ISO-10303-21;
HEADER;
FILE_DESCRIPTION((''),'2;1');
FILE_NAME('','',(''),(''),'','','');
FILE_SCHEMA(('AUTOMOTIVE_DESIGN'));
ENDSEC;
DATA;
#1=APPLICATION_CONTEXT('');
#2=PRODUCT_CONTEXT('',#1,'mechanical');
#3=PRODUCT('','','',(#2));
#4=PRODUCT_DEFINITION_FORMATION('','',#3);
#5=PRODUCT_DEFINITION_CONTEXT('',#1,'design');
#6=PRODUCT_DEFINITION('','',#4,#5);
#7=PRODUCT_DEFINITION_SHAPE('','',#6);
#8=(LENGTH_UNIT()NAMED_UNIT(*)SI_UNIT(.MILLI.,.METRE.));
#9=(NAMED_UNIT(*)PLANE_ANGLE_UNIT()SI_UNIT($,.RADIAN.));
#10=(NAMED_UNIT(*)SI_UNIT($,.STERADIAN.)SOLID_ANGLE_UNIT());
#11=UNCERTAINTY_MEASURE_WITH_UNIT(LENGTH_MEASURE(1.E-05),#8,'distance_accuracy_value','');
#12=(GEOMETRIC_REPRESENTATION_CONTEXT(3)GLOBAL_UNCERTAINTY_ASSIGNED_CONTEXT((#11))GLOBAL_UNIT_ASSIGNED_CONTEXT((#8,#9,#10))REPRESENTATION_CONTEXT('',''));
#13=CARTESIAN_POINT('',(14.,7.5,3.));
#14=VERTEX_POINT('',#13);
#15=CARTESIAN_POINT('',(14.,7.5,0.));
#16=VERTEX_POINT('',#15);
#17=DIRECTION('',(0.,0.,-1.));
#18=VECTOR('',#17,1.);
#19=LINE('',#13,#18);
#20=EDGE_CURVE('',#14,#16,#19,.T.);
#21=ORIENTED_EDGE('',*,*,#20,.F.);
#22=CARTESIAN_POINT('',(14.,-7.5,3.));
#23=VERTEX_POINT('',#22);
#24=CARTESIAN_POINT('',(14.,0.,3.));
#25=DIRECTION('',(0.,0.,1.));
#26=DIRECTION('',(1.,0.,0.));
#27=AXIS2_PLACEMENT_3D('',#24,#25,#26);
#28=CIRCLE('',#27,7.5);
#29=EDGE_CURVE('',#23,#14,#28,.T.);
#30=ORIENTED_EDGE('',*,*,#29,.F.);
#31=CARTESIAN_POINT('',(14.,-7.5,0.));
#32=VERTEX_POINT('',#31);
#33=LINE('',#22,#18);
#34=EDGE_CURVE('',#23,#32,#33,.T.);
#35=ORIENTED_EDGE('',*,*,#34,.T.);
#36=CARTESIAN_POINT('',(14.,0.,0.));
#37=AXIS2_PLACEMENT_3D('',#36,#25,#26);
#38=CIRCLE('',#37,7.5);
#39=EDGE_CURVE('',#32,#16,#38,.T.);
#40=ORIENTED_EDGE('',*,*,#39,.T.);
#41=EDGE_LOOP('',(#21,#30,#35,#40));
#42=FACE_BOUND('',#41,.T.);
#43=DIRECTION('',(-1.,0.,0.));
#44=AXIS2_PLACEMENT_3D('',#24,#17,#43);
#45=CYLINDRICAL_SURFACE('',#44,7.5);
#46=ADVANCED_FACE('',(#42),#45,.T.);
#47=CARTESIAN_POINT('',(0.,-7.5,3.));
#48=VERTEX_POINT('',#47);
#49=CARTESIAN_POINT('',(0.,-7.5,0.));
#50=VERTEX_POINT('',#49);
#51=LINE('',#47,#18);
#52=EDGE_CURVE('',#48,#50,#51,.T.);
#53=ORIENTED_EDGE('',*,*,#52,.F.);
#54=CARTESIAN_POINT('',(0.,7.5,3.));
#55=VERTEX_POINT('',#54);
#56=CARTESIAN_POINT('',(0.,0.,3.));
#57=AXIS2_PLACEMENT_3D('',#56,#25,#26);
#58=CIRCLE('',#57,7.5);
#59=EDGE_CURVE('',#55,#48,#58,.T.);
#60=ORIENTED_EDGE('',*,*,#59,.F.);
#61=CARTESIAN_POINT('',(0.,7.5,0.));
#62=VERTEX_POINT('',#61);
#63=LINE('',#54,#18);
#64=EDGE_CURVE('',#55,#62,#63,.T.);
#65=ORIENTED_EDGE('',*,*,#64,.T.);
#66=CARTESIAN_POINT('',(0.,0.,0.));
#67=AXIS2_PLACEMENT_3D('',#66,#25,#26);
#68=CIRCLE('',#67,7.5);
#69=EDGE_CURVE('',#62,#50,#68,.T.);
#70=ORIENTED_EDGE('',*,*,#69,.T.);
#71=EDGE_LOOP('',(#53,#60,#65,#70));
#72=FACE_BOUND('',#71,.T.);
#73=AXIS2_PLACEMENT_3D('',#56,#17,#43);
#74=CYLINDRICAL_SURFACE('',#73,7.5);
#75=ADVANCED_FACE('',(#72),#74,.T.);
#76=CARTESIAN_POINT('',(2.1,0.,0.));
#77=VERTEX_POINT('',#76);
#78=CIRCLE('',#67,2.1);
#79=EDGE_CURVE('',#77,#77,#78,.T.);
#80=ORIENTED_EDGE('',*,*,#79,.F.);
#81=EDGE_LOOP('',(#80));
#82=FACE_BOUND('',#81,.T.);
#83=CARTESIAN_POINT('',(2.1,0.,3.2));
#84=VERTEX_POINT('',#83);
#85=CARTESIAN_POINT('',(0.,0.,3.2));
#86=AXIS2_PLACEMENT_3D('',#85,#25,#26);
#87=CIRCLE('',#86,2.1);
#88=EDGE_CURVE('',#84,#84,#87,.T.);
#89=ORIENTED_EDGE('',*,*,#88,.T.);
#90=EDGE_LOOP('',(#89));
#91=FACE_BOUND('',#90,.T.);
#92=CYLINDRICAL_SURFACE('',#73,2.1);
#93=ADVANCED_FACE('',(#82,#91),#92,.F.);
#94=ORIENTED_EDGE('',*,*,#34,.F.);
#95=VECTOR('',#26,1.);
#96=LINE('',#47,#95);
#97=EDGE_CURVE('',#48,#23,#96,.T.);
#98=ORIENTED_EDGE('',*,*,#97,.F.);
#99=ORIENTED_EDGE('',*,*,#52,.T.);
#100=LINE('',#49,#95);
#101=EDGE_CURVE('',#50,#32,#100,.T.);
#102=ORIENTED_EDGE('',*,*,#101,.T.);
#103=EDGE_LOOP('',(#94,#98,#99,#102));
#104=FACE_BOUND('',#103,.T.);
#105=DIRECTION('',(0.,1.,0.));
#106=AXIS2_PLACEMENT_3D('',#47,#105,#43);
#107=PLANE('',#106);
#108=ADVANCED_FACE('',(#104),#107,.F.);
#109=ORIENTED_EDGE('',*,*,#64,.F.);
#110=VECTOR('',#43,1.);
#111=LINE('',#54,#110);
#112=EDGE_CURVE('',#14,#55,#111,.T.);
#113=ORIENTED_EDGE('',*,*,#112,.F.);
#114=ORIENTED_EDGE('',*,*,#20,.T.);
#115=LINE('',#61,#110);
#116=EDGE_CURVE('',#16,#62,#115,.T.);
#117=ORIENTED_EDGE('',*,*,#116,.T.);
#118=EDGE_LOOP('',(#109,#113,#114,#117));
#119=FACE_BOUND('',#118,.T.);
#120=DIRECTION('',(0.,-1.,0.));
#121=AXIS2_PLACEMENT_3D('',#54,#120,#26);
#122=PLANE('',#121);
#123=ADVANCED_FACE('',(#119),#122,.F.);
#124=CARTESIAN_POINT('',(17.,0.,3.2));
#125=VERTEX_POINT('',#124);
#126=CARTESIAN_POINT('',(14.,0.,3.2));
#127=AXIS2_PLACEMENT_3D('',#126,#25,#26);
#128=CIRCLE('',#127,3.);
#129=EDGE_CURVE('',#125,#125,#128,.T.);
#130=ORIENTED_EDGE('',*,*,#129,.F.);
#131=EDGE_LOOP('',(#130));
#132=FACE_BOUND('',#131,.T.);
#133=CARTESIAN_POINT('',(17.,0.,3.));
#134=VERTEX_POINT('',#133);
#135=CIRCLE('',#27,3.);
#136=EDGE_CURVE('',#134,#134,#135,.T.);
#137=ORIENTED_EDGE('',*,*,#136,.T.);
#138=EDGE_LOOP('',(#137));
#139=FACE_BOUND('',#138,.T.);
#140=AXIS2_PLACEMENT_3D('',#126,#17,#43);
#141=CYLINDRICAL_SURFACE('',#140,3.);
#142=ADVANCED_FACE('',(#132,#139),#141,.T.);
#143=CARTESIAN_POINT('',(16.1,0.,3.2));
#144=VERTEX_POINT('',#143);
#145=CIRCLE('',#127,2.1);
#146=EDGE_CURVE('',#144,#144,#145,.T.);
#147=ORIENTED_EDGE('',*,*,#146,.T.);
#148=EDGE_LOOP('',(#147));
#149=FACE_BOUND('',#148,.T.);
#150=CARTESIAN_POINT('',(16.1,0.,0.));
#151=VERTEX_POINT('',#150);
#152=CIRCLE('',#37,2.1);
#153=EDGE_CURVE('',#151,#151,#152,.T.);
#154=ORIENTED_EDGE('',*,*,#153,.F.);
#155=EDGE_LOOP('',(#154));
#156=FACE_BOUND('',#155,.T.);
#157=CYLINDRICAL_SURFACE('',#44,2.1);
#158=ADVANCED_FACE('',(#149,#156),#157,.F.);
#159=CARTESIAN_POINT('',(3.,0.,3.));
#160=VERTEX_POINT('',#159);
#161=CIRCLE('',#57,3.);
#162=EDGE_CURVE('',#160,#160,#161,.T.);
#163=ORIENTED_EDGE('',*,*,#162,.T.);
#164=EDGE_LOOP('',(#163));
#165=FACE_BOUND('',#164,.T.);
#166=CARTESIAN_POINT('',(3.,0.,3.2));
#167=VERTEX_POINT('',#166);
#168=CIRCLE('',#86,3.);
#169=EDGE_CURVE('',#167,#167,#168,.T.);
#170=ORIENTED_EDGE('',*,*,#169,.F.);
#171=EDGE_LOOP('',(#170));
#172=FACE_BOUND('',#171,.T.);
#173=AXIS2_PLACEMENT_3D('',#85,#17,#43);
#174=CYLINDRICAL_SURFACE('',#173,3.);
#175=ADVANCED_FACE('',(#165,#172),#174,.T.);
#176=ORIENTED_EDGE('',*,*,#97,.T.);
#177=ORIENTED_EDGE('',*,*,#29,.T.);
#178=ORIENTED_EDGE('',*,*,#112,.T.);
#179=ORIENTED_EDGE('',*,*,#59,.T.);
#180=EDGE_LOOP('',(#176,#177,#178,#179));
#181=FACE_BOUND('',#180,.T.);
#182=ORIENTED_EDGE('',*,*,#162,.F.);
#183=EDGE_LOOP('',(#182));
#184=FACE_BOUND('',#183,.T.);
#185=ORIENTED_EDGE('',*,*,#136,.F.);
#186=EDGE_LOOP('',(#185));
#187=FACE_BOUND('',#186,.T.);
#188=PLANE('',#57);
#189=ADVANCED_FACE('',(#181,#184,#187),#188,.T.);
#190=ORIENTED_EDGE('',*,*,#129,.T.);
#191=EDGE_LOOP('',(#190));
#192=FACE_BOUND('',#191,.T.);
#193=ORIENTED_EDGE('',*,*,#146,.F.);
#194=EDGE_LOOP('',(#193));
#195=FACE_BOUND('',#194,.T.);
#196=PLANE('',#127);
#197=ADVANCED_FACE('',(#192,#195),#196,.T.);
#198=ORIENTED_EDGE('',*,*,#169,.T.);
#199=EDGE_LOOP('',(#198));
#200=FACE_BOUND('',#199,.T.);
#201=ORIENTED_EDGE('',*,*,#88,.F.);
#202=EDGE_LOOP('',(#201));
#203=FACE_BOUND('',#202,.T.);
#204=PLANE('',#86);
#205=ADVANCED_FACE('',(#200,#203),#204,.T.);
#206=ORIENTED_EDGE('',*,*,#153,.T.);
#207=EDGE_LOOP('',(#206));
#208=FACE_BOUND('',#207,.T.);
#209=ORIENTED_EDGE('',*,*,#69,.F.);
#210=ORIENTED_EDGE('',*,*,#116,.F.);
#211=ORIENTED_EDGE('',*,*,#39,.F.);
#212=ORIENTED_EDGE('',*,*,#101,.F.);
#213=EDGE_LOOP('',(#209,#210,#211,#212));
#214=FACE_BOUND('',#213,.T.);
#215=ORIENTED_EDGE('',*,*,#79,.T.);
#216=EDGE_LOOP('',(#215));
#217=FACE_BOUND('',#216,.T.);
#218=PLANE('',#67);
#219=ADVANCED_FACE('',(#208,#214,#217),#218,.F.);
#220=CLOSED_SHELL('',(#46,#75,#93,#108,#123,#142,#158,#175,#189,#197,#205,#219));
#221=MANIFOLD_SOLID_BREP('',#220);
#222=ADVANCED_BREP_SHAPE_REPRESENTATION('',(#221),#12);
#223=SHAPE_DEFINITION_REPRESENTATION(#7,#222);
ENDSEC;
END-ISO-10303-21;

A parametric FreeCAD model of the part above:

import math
import FreeCAD as App
import Part
import Sketcher
from FreeCAD import Vector
Q = App.Units.Quantity

doc = App.newDocument("Part")
body = doc.addObject("PartDesign::Body", "Body")

# Sketch on XY plane
sketch1 = body.newObject("Sketcher::SketchObject", "Sketch")
sketch1.AttachmentSupport = (doc.getObject("XY_Plane"), [""])
sketch1.MapMode = "FlatFace"
sketch1.addGeometry([
    Part.LineSegment(Vector(14, 7.5, 0), Vector(0, 7.5, 0)),  # 0
    Part.ArcOfCircle(Part.Circle(Vector(0, 0, 0), Vector(0, 0, 1), 7.5), math.radians(90), math.radians(270)),  # 1
    Part.LineSegment(Vector(0, -7.5, 0), Vector(14, -7.5, 0)),  # 2
    Part.ArcOfCircle(Part.Circle(Vector(14, 0, 0), Vector(0, 0, 1), 7.5), math.radians(-90), math.radians(90)),  # 3
    Part.Circle(Vector(14, 0, 0), Vector(0, 0, 1), 2.1),  # 4
    Part.Circle(Vector(0, 0, 0), Vector(0, 0, 1), 2.1),  # 5
], False)
sketch1.addConstraint([
    Sketcher.Constraint("Tangent", 0, 2, 1, 1),
    Sketcher.Constraint("Tangent", 1, 2, 2, 1),
    Sketcher.Constraint("Tangent", 2, 2, 3, 1),
    Sketcher.Constraint("Tangent", 3, 2, 0, 1),
    Sketcher.Constraint("Horizontal", 0),
    Sketcher.Constraint("Horizontal", 2),
    Sketcher.Constraint("Coincident", 1, 3, -1, 1),
    Sketcher.Constraint("Coincident", 5, 3, -1, 1),
    Sketcher.Constraint("Coincident", 4, 3, 3, 3),
    Sketcher.Constraint("Equal", 4, 5),
    Sketcher.Constraint("Diameter", 4, Q("4.2 mm")),
    Sketcher.Constraint("Radius", 1, Q("7.5 mm")),
    Sketcher.Constraint("DistanceX", 0, 2, 0, 1, Q("14 mm")),
])
pad1 = body.newObject("PartDesign::Pad", "Pad")
pad1.Profile = sketch1
pad1.Length = 3

# Sketch on XY plane
sketch2 = body.newObject("Sketcher::SketchObject", "Sketch001")
sketch2.AttachmentSupport = (doc.getObject("XY_Plane"), [""])
sketch2.MapMode = "FlatFace"
sketch2.AttachmentOffset = App.Placement(Vector(0, 0, 3), App.Rotation())
sketch2.addGeometry([
    Part.Circle(Vector(0, 0, 0), Vector(0, 0, 1), 3),
    Part.Circle(Vector(0, 0, 0), Vector(0, 0, 1), 2.1),
    Part.Circle(Vector(14, 0, 0), Vector(0, 0, 1), 3),
    Part.Circle(Vector(14, 0, 0), Vector(0, 0, 1), 2.1),
], False)
sketch2.addConstraint([
    Sketcher.Constraint("Coincident", 0, 3, -1, 1),
    Sketcher.Constraint("Coincident", 1, 3, -1, 1),
    Sketcher.Constraint("Coincident", 3, 3, 2, 3),
    Sketcher.Constraint("Equal", 0, 2),
    Sketcher.Constraint("Equal", 1, 3),
    Sketcher.Constraint("PointOnObject", 2, 3, -1),
    Sketcher.Constraint("Diameter", 0, Q("6 mm")),
    Sketcher.Constraint("Diameter", 1, Q("4.2 mm")),
    Sketcher.Constraint("DistanceX", -1, 1, 2, 3, Q("14 mm")),
])
pad2 = body.newObject("PartDesign::Pad", "Pad001")
pad2.Profile = sketch2
pad2.Length = 0.2

doc.recompute()
